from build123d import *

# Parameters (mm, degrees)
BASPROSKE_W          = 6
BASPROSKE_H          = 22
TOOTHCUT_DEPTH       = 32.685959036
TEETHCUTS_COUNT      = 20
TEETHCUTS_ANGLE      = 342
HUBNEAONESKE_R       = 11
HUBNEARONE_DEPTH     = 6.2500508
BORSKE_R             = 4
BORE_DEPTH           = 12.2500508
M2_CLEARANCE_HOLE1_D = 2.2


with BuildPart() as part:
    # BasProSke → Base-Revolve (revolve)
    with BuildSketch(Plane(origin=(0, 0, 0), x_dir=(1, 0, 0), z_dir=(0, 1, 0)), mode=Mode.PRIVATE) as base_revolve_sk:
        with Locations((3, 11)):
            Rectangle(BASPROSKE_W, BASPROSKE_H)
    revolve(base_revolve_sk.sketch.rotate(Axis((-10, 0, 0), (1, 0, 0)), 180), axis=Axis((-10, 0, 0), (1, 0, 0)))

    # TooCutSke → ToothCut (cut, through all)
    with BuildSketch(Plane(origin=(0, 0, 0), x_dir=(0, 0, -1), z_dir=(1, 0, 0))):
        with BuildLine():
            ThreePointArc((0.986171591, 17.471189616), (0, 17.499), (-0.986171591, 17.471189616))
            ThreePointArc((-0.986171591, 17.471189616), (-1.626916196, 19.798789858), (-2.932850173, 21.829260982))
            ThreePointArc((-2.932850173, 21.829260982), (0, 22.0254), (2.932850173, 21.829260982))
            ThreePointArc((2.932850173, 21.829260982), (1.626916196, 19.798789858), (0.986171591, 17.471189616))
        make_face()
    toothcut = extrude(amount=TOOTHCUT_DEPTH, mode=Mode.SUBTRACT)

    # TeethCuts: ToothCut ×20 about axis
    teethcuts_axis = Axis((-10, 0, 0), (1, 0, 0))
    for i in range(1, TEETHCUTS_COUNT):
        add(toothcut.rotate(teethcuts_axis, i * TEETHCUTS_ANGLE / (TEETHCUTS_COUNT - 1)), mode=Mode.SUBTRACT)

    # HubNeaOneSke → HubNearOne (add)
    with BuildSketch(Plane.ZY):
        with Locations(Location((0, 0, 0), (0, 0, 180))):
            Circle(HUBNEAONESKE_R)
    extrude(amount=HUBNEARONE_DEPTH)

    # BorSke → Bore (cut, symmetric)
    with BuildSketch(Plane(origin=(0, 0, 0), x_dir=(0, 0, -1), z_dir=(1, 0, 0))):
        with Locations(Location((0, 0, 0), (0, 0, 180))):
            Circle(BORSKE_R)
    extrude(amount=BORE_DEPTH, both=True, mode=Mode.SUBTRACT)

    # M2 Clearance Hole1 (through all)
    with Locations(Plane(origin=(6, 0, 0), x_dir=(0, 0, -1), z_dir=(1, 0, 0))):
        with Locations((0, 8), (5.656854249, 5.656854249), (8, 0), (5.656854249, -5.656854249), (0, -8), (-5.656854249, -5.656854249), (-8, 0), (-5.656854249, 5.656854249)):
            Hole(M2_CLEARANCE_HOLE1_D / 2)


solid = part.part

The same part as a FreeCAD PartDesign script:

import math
import FreeCAD as App
import Part
import Sketcher

V = App.Vector

doc = App.newDocument("Part")
body = doc.addObject("PartDesign::Body", "Body")

# Sketch on XZ plane
sketch1 = body.newObject("Sketcher::SketchObject", "Sketch")
sketch1.AttachmentSupport = (doc.getObject("XZ_Plane"), [""])
sketch1.MapMode = "FlatFace"
sketch1.addGeometry(Part.LineSegment(V(0, -22, 0), V(0, 0, 0)), False)
sketch1.addGeometry(Part.LineSegment(V(0, 0, 0), V(6, 0, 0)), False)
sketch1.addGeometry(Part.LineSegment(V(6, 0, 0), V(6, -22, 0)), False)
sketch1.addGeometry(Part.LineSegment(V(6, -22, 0), V(0, -22, 0)), False)
sketch1.addConstraint(Sketcher.Constraint("Coincident", 0, 2, 1, 1))
sketch1.addConstraint(Sketcher.Constraint("Coincident", 1, 2, 2, 1))
sketch1.addConstraint(Sketcher.Constraint("Coincident", 2, 2, 3, 1))
sketch1.addConstraint(Sketcher.Constraint("Coincident", 3, 2, 0, 1))
sketch1.addConstraint(Sketcher.Constraint("Vertical", 0))
sketch1.addConstraint(Sketcher.Constraint("Horizontal", 1))
sketch1.addConstraint(Sketcher.Constraint("Vertical", 2))
sketch1.addConstraint(Sketcher.Constraint("Horizontal", 3))
sketch1.addConstraint(Sketcher.Constraint("Coincident", 0, 2, -1, 1))
sketch1.addConstraint(Sketcher.Constraint("DistanceX", 1, 1, 1, 2, 6.0))
sketch1.addConstraint(Sketcher.Constraint("DistanceY", 0, 1, 0, 2, 22.0))
revolution = body.newObject("PartDesign::Revolution", "Revolution")
revolution.Profile = sketch1
revolution.ReferenceAxis = (sketch1, ["H_Axis"])
revolution.Angle = 360

# Sketch on YZ plane
sketch2 = body.newObject("Sketcher::SketchObject", "Sketch001")
sketch2.AttachmentSupport = (doc.getObject("YZ_Plane"), [""])
sketch2.MapMode = "FlatFace"
sketch2.addGeometry(Part.ArcOfCircle(Part.Circle(V(0, 0, 0), V(0, 0, 1), 17.499), math.radians(-3.230666), math.radians(3.230666)), False)
sketch2.addGeometry(Part.ArcOfCircle(Part.Circle(V(16.536031, -8.931326, 0), V(0, 0, 1), 8), math.radians(48.573876), math.radians(83.287069)), False)
sketch2.addGeometry(Part.ArcOfCircle(Part.Circle(V(0, 0, 0), V(0, 0, 1), 22.0254), math.radians(-7.652098), math.radians(7.652098)), False)
sketch2.addGeometry(Part.ArcOfCircle(Part.Circle(V(16.536031, 8.931326, 0), V(0, 0, 1), 8), math.radians(-83.287069), math.radians(-48.573876)), False)
sketch2.addConstraint(Sketcher.Constraint("Coincident", 0, 1, 1, 2))
sketch2.addConstraint(Sketcher.Constraint("Coincident", 1, 1, 2, 1))
sketch2.addConstraint(Sketcher.Constraint("Coincident", 2, 2, 3, 2))
sketch2.addConstraint(Sketcher.Constraint("Coincident", 3, 1, 0, 2))
sketch2.addConstraint(Sketcher.Constraint("Coincident", 0, 3, -1, 1))
sketch2.addConstraint(Sketcher.Constraint("Coincident", 2, 3, -1, 1))
sketch2.addConstraint(Sketcher.Constraint("Equal", 1, 3))
sketch2.addConstraint(Sketcher.Constraint("Symmetric", 1, 3, 3, 3, -1))
sketch2.addConstraint(Sketcher.Constraint("Radius", 1, 8.0))
sketch2.addConstraint(Sketcher.Constraint("Radius", 0, 17.499))
sketch2.addConstraint(Sketcher.Constraint("Radius", 2, 22.0254))
sketch2.addConstraint(Sketcher.Constraint("DistanceY", 1, 1, 2, 2, 5.8657))
sketch2.addConstraint(Sketcher.Constraint("DistanceX", -1, 1, 1, 3, 16.536031))
pocket1 = body.newObject("PartDesign::Pocket", "Pocket")
pocket1.Profile = sketch2
pocket1.Type = "ThroughAll"
pocket1.Reversed = True
doc.recompute()

polarpattern = body.newObject("PartDesign::PolarPattern", "PolarPattern")
polarpattern.Originals = [pocket1]
polarpattern.Axis = (doc.getObject("X_Axis"), [""])
polarpattern.Angle = 360
polarpattern.Occurrences = 20
body.Tip = polarpattern

# Sketch on YZ plane
sketch3 = body.newObject("Sketcher::SketchObject", "Sketch002")
sketch3.AttachmentSupport = (doc.getObject("YZ_Plane"), [""])
sketch3.MapMode = "FlatFace"
sketch3.addGeometry(Part.Circle(V(0, 0, 0), V(0, 0, 1), 11), False)
sketch3.addConstraint(Sketcher.Constraint("Coincident", 0, 3, -1, 1))
sketch3.addConstraint(Sketcher.Constraint("Diameter", 0, 22.0))
pad1 = body.newObject("PartDesign::Pad", "Pad")
pad1.Profile = sketch3
pad1.Length = 6.250051
pad1.Reversed = True

# Sketch on YZ plane
sketch4 = body.newObject("Sketcher::SketchObject", "Sketch003")
sketch4.AttachmentSupport = (doc.getObject("YZ_Plane"), [""])
sketch4.MapMode = "FlatFace"
sketch4.addGeometry(Part.Circle(V(0, 0, 0), V(0, 0, 1), 4), False)
sketch4.addConstraint(Sketcher.Constraint("Coincident", 0, 3, -1, 1))
sketch4.addConstraint(Sketcher.Constraint("Diameter", 0, 8.0))
pocket2 = body.newObject("PartDesign::Pocket", "Pocket001")
pocket2.Profile = sketch4
pocket2.Length = 24.500102
pocket2.Midplane = True

# Sketch on YZ plane
sketch5 = body.newObject("Sketcher::SketchObject", "Sketch004")
sketch5.AttachmentSupport = (doc.getObject("YZ_Plane"), [""])
sketch5.MapMode = "FlatFace"
sketch5.AttachmentOffset = App.Placement(V(0, 0, 6), App.Rotation())
sketch5.addGeometry(Part.Circle(V(8, 0, 0), V(0, 0, 1), 1.1), False)
sketch5.addGeometry(Part.Circle(V(5.656854, -5.656854, 0), V(0, 0, 1), 1.1), False)
sketch5.addGeometry(Part.Circle(V(0, -8, 0), V(0, 0, 1), 1.1), False)
sketch5.addGeometry(Part.Circle(V(-5.656854, -5.656854, 0), V(0, 0, 1), 1.1), False)
sketch5.addGeometry(Part.Circle(V(-8, 0, 0), V(0, 0, 1), 1.1), False)
sketch5.addGeometry(Part.Circle(V(-5.656854, 5.656854, 0), V(0, 0, 1), 1.1), False)
sketch5.addGeometry(Part.Circle(V(0, 8, 0), V(0, 0, 1), 1.1), False)
sketch5.addGeometry(Part.Circle(V(5.656854, 5.656854, 0), V(0, 0, 1), 1.1), False)
sketch5.addConstraint(Sketcher.Constraint("Equal", 0, 1))
sketch5.addConstraint(Sketcher.Constraint("Equal", 1, 2))
sketch5.addConstraint(Sketcher.Constraint("Equal", 2, 3))
sketch5.addConstraint(Sketcher.Constraint("Equal", 3, 4))
sketch5.addConstraint(Sketcher.Constraint("Equal", 4, 5))
sketch5.addConstraint(Sketcher.Constraint("Equal", 5, 6))
sketch5.addConstraint(Sketcher.Constraint("Equal", 6, 7))
sketch5.addConstraint(Sketcher.Constraint("Symmetric", 0, 3, 4, 3, -1, 1))
sketch5.addConstraint(Sketcher.Constraint("Symmetric", 1, 3, 5, 3, -1, 1))
sketch5.addConstraint(Sketcher.Constraint("Symmetric", 2, 3, 6, 3, -1, 1))
sketch5.addConstraint(Sketcher.Constraint("Symmetric", 3, 3, 7, 3, -1, 1))
sketch5.addConstraint(Sketcher.Constraint("Symmetric", 1, 3, 3, 3, -2))
sketch5.addConstraint(Sketcher.Constraint("PointOnObject", 0, 3, -1))
sketch5.addConstraint(Sketcher.Constraint("PointOnObject", 2, 3, -2))
sketch5.addConstraint(Sketcher.Constraint("Diameter", 0, 2.2))
sketch5.addConstraint(Sketcher.Constraint("DistanceX", -1, 1, 0, 3, 8.0))
sketch5.addConstraint(Sketcher.Constraint("DistanceY", 2, 3, -1, 1, 8.0))
sketch5.addConstraint(Sketcher.Constraint("DistanceX", 3, 3, 1, 3, 11.313708))
sketch5.addConstraint(Sketcher.Constraint("DistanceY", 3, 3, 5, 3, 11.313708))
doc.recompute()
hole = body.newObject("PartDesign::Hole", "Hole")
hole.Profile = sketch5
hole.ThreadType = "None"
hole.Diameter = 2.2
hole.DepthType = "ThroughAll"

doc.recompute()
